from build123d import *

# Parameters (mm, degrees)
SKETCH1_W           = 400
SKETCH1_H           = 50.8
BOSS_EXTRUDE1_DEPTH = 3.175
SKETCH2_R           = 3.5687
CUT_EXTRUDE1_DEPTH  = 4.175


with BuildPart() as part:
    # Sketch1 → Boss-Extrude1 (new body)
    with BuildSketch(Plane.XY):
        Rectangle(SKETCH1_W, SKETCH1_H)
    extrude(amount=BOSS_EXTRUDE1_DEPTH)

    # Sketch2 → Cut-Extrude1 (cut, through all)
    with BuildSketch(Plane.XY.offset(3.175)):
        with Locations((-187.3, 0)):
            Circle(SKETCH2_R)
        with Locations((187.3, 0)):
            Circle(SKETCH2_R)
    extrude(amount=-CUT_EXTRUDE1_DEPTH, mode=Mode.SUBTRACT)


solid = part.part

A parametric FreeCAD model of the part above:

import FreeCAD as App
import Part
import Sketcher
Q = App.Units.Quantity


def add_polygon(sketch, points):
    """Adds a closed chain of lines whose ends are joined by coincident constraints."""
    first, n = sketch.GeometryCount, len(points)
    for a, b in zip(points, points[1:] + points[:1]):
        sketch.addGeometry(Part.LineSegment(App.Vector(*a, 0), App.Vector(*b, 0)), False)
    for i in range(n):
        sketch.addConstraint(Sketcher.Constraint("Coincident", first + i, 2, first + (i + 1) % n, 1))

doc = App.newDocument("Part")
body = doc.addObject("PartDesign::Body", "Body")

# Sketch on XY plane
sketch1 = body.newObject("Sketcher::SketchObject", "Sketch")
sketch1.AttachmentSupport = (doc.getObject("XY_Plane"), [""])
sketch1.MapMode = "FlatFace"
add_polygon(sketch1, [(-200, 25), (-200, -25), (200, -25), (200, 25)])  # lines 0-3
sketch1.addConstraint(Sketcher.Constraint("Vertical", 0))
sketch1.addConstraint(Sketcher.Constraint("Horizontal", 1))
sketch1.addConstraint(Sketcher.Constraint("Vertical", 2))
sketch1.addConstraint(Sketcher.Constraint("Horizontal", 3))
sketch1.addConstraint(Sketcher.Constraint("Symmetric", 0, 2, 2, 2, -1, 1))
sketch1.addConstraint(Sketcher.Constraint("DistanceY", 0, 2, 0, 1, Q("2 in")))
sketch1.addConstraint(Sketcher.Constraint("DistanceX", 1, 1, 1, 2, 400.0))
pad1 = body.newObject("PartDesign::Pad", "Pad")
pad1.Profile = sketch1
pad1.Length = Q("0.125 in")

# Sketch on XY plane
sketch2 = body.newObject("Sketcher::SketchObject", "Sketch001")
sketch2.AttachmentSupport = (doc.getObject("XY_Plane"), [""])
sketch2.MapMode = "FlatFace"
sketch2.AttachmentOffset = App.Placement(App.Vector(0, 0, 0.125 * 25.4), App.Rotation())
sketch2.addGeometry(Part.Circle(App.Vector(-187.3, 0, 0), App.Vector(0, 0, 1), 3.6), False)
sketch2.addGeometry(Part.Circle(App.Vector(187.3, 0, 0), App.Vector(0, 0, 1), 3.6), False)
sketch2.addConstraint(Sketcher.Constraint("Equal", 0, 1))
sketch2.addConstraint(Sketcher.Constraint("Symmetric", 0, 3, 1, 3, -1, 1))
sketch2.addConstraint(Sketcher.Constraint("PointOnObject", 0, 3, -1))
sketch2.addConstraint(Sketcher.Constraint("Diameter", 0, Q("0.281 in")))
sketch2.addConstraint(Sketcher.Constraint("DistanceX", 0, 3, -1, 1, 187.3))
pocket1 = body.newObject("PartDesign::Pocket", "Pocket")
pocket1.Profile = sketch2
pocket1.Type = "ThroughAll"

doc.recompute()
